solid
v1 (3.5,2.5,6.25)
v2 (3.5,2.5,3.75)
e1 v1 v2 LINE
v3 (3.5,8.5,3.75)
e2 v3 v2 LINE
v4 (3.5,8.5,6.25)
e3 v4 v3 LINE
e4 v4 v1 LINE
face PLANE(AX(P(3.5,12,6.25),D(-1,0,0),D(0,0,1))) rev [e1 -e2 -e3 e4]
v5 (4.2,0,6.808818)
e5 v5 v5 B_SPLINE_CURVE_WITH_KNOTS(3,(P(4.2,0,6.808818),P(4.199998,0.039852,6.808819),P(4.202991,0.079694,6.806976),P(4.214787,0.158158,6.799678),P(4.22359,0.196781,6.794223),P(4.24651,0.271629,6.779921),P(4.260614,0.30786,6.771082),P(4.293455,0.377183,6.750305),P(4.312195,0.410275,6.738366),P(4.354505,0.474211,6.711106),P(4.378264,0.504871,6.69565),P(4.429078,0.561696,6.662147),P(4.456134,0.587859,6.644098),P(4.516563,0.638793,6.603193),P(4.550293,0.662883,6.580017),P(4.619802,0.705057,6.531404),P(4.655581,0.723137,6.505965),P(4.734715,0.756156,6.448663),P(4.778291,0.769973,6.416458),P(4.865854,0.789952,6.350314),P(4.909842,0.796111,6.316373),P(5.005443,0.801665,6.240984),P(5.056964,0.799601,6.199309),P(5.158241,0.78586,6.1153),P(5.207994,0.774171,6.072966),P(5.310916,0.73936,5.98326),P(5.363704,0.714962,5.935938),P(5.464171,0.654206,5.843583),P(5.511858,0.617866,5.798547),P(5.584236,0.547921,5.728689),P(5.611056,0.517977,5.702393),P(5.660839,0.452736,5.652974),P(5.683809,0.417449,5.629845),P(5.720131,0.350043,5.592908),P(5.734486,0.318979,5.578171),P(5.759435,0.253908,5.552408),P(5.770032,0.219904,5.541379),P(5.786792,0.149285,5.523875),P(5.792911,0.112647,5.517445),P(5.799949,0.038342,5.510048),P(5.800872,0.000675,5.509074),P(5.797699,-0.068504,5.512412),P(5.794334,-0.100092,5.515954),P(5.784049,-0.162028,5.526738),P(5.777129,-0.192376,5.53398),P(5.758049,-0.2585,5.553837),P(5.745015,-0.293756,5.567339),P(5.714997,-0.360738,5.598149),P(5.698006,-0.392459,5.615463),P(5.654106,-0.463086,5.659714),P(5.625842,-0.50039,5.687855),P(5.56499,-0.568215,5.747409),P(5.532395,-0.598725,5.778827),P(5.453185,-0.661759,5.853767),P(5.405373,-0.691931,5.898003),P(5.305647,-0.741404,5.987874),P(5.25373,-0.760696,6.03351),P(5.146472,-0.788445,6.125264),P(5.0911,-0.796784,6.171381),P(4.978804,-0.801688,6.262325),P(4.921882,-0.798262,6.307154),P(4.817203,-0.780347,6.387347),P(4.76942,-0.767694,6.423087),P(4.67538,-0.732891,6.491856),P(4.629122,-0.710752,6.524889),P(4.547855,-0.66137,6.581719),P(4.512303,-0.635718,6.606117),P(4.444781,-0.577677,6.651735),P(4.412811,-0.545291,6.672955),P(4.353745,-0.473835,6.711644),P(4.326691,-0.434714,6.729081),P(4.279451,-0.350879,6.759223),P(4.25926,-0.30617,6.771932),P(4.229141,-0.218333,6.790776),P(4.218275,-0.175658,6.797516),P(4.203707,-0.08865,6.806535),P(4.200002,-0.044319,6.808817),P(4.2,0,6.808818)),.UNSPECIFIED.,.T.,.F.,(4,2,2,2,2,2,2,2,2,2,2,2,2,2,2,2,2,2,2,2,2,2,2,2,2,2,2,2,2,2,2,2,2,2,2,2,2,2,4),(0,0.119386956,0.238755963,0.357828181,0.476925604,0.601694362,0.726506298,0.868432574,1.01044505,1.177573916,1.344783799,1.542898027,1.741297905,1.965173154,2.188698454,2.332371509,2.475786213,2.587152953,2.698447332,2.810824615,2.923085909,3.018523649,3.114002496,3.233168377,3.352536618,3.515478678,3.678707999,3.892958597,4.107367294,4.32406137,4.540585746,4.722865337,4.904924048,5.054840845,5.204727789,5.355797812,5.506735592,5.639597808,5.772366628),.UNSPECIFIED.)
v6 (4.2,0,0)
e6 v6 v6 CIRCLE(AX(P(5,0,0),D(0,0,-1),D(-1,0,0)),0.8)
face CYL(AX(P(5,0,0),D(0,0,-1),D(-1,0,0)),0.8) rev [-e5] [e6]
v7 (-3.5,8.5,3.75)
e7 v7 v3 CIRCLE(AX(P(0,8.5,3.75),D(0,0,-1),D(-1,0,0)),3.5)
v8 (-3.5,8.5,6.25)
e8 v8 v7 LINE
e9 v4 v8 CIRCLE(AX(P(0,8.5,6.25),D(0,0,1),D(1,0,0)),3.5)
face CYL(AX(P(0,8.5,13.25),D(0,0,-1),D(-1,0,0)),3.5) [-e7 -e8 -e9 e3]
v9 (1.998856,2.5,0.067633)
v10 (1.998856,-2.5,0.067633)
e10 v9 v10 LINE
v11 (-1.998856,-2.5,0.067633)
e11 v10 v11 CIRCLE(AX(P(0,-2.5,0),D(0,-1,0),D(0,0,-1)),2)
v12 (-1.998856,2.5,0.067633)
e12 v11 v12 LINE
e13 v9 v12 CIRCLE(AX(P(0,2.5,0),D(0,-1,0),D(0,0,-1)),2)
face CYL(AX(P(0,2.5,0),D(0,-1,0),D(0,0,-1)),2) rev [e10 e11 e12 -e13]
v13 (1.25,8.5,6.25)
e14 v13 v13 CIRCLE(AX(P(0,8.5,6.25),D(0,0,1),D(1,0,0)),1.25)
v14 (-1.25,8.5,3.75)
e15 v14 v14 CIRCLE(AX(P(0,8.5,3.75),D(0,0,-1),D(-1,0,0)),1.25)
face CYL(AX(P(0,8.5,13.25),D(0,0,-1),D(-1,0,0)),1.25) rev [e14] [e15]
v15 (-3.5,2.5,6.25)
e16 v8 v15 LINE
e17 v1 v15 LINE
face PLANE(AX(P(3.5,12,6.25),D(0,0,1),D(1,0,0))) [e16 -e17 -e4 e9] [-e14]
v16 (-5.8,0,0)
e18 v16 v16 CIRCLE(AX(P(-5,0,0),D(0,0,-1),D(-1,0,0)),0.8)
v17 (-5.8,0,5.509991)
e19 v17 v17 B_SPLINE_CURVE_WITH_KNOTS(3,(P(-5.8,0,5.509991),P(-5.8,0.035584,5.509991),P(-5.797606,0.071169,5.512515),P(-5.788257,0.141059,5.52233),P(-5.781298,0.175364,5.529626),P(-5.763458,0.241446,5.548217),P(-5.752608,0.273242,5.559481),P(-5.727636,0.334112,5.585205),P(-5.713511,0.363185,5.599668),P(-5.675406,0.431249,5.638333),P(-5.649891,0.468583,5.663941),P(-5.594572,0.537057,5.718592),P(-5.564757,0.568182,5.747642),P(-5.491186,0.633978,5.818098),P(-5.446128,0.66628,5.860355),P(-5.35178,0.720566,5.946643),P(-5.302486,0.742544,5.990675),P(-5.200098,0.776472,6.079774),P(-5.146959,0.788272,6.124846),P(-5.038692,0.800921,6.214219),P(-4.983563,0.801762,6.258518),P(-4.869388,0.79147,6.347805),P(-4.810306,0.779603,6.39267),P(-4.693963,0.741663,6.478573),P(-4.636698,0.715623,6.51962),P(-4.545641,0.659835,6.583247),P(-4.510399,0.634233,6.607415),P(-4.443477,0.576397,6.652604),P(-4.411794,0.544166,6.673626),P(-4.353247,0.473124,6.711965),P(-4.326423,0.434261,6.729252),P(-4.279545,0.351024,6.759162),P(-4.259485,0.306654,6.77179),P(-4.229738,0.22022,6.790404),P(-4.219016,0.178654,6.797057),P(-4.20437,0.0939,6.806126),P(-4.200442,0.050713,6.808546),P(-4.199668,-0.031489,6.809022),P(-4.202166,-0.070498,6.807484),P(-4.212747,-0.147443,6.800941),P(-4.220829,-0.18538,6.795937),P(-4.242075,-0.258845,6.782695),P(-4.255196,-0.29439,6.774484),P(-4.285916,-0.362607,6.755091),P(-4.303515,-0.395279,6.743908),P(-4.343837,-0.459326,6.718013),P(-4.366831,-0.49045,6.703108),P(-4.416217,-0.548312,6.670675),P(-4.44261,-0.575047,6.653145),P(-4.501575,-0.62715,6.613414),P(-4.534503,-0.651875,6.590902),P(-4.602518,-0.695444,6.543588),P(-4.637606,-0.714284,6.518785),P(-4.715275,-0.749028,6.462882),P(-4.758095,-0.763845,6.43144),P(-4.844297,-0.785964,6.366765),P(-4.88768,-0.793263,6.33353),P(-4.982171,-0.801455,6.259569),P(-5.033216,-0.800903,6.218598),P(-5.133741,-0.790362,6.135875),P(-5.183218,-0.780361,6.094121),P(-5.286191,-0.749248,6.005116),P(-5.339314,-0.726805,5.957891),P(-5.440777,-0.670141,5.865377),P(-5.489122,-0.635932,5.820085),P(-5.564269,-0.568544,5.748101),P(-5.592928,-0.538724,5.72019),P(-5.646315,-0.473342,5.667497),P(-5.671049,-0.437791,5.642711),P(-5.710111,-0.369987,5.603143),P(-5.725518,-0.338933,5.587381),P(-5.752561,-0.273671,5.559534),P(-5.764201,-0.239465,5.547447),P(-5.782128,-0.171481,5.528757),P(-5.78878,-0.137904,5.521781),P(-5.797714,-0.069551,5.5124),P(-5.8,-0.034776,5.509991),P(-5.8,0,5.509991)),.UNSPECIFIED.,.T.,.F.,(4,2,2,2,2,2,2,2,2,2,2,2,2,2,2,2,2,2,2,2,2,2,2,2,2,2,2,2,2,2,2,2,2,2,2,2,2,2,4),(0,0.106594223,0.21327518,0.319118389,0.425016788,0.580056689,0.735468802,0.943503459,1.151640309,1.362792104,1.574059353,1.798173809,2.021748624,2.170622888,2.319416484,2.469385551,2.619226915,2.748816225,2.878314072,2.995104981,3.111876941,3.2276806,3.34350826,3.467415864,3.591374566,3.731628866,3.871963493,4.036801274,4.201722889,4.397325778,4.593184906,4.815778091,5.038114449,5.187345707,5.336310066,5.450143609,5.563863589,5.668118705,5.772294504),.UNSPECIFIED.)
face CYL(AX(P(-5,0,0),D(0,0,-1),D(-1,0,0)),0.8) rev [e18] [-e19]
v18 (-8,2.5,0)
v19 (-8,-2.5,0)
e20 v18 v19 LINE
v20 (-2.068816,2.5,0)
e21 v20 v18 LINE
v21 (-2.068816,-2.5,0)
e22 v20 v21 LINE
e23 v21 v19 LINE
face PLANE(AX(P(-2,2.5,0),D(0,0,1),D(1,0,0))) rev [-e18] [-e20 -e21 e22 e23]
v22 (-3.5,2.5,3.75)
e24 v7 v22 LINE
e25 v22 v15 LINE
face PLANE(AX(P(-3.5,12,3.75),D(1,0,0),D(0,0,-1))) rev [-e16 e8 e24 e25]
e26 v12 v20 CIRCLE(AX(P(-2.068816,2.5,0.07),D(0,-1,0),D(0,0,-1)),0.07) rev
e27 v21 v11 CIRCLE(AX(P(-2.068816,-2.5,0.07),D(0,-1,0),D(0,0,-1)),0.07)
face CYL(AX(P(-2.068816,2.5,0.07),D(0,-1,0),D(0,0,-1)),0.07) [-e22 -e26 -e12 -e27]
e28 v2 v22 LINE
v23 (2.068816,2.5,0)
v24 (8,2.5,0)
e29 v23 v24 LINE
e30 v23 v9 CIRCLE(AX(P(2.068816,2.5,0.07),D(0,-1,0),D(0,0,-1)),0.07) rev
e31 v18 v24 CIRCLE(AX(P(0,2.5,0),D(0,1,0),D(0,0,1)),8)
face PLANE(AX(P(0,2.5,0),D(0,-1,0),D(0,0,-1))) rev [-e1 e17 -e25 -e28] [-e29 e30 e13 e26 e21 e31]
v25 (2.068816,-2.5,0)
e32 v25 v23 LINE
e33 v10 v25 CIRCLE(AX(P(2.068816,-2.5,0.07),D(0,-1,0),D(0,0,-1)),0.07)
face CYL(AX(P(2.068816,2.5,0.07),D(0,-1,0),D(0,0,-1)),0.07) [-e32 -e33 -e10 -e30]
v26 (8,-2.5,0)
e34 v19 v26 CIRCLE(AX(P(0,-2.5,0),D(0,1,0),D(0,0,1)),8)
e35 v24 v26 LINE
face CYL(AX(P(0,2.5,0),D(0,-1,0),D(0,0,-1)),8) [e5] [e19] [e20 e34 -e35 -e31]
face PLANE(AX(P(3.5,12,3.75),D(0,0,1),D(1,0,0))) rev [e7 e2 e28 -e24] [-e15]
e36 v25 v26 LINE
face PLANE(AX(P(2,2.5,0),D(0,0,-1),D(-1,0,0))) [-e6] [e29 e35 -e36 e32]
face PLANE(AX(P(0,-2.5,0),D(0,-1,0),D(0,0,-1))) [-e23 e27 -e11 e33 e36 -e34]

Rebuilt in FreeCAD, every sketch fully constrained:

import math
import FreeCAD as App
import Part
import Sketcher

V = App.Vector


def edges_at(feature, points):
    """Names of the edges that pass closest to the given points."""
    edges = feature.Shape.Edges
    near = lambda p: min(range(len(edges)), key=lambda i: edges[i].distToShape(Part.Vertex(*p))[0])
    return sorted({f"Edge{near(p) + 1}" for p in points})


def add_polygon(sketch, points):
    """Adds a closed chain of lines whose ends are joined by coincident constraints."""
    first, n = sketch.GeometryCount, len(points)
    for a, b in zip(points, points[1:] + points[:1]):
        sketch.addGeometry(Part.LineSegment(App.Vector(*a, 0), App.Vector(*b, 0)), False)
    for i in range(n):
        sketch.addConstraint(Sketcher.Constraint("Coincident", first + i, 2, first + (i + 1) % n, 1))

doc = App.newDocument("Part")
body = doc.addObject("PartDesign::Body", "Body")

# Sketch on XZ plane
sketch1 = body.newObject("Sketcher::SketchObject", "Sketch")
sketch1.AttachmentSupport = (doc.getObject("XZ_Plane"), [""])
sketch1.MapMode = "FlatFace"
sketch1.addGeometry(Part.LineSegment(V(8, 0, 0), V(2, 0, 0)), False)
sketch1.addGeometry(Part.ArcOfCircle(Part.Circle(V(0, 0, 0), V(0, 0, 1), 2), math.radians(0), math.radians(180)), False)
sketch1.addGeometry(Part.LineSegment(V(-2, 0, 0), V(-8, 0, 0)), False)
sketch1.addGeometry(Part.ArcOfCircle(Part.Circle(V(0, 0, 0), V(0, 0, 1), 8), math.radians(0), math.radians(180)), False)
sketch1.addConstraint(Sketcher.Constraint("Coincident", 0, 2, 1, 1))
sketch1.addConstraint(Sketcher.Constraint("Coincident", 1, 2, 2, 1))
sketch1.addConstraint(Sketcher.Constraint("Coincident", 2, 2, 3, 2))
sketch1.addConstraint(Sketcher.Constraint("Coincident", 3, 1, 0, 1))
sketch1.addConstraint(Sketcher.Constraint("Horizontal", 0))
sketch1.addConstraint(Sketcher.Constraint("Horizontal", 2))
sketch1.addConstraint(Sketcher.Constraint("Coincident", 1, 3, -1, 1))
sketch1.addConstraint(Sketcher.Constraint("Coincident", 3, 3, -1, 1))
sketch1.addConstraint(Sketcher.Constraint("PointOnObject", 0, 2, -1))
sketch1.addConstraint(Sketcher.Constraint("PointOnObject", 1, 2, -1))
sketch1.addConstraint(Sketcher.Constraint("Radius", 1, 2.0))
sketch1.addConstraint(Sketcher.Constraint("Radius", 3, 8.0))
pad1 = body.newObject("PartDesign::Pad", "Pad")
pad1.Profile = sketch1
pad1.Length = 5
pad1.Midplane = True

# Sketch on XZ plane
sketch2 = body.newObject("Sketcher::SketchObject", "Sketch001")
sketch2.AttachmentSupport = (doc.getObject("XZ_Plane"), [""])
sketch2.MapMode = "FlatFace"
sketch2.AttachmentOffset = App.Placement(V(0, 0, -2.5), App.Rotation())
add_polygon(sketch2, [(-3.5, 3.8), (-3.5, 6.2), (3.5, 6.2), (3.5, 3.8)])  # lines 0-3
sketch2.addConstraint(Sketcher.Constraint("Vertical", 0))
sketch2.addConstraint(Sketcher.Constraint("Horizontal", 1))
sketch2.addConstraint(Sketcher.Constraint("Vertical", 2))
sketch2.addConstraint(Sketcher.Constraint("Horizontal", 3))
sketch2.addConstraint(Sketcher.Constraint("DistanceX", 1, 1, 1, 2, 7.0))
sketch2.addConstraint(Sketcher.Constraint("DistanceY", 0, 1, 0, 2, 2.5))
sketch2.addConstraint(Sketcher.Constraint("DistanceX", 0, 2, -1, 1, 3.5))
sketch2.addConstraint(Sketcher.Constraint("DistanceY", -1, 1, 0, 2, 6.25))
pad2 = body.newObject("PartDesign::Pad", "Pad001")
pad2.Profile = sketch2
pad2.Length = 9.5
pad2.Reversed = True

# Sketch on XY plane
sketch3 = body.newObject("Sketcher::SketchObject", "Sketch002")
sketch3.AttachmentSupport = (doc.getObject("XY_Plane"), [""])
sketch3.MapMode = "FlatFace"
sketch3.AttachmentOffset = App.Placement(V(0, 0, 3.75), App.Rotation())
sketch3.addGeometry(Part.LineSegment(V(3.5, 14.9, 0), V(3.5, 8.5, 0)), False)
sketch3.addGeometry(Part.ArcOfCircle(Part.Circle(V(0, 8.5, 0), V(0, 0, 1), 3.5), math.radians(0), math.radians(180)), False)
sketch3.addGeometry(Part.LineSegment(V(-3.5, 8.5, 0), V(-3.5, 14.5, 0)), False)
sketch3.addGeometry(Part.LineSegment(V(-3.5, 14.5, 0), V(0, 16.8, 0)), False)
sketch3.addGeometry(Part.LineSegment(V(0, 16.8, 0), V(3.5, 14.9, 0)), False)
sketch3.addConstraint(Sketcher.Constraint("Tangent", 0, 2, 1, 1))
sketch3.addConstraint(Sketcher.Constraint("Tangent", 1, 2, 2, 1))
sketch3.addConstraint(Sketcher.Constraint("Coincident", 2, 2, 3, 1))
sketch3.addConstraint(Sketcher.Constraint("Coincident", 3, 2, 4, 1))
sketch3.addConstraint(Sketcher.Constraint("Coincident", 4, 2, 0, 1))
sketch3.addConstraint(Sketcher.Constraint("Vertical", 0))
sketch3.addConstraint(Sketcher.Constraint("Vertical", 2))
sketch3.addConstraint(Sketcher.Constraint("PointOnObject", 1, 3, -2))
sketch3.addConstraint(Sketcher.Constraint("PointOnObject", 3, 2, -2))
sketch3.addConstraint(Sketcher.Constraint("Radius", 1, 3.5))
sketch3.addConstraint(Sketcher.Constraint("DistanceY", 2, 1, 2, 2, 6.0))
sketch3.addConstraint(Sketcher.Constraint("DistanceY", -1, 1, 1, 3, 8.5))
sketch3.addConstraint(Sketcher.Constraint("DistanceY", 0, 2, 0, 1, 6.38636))
sketch3.addConstraint(Sketcher.Constraint("DistanceY", -1, 1, 3, 2, 16.809202))
pocket1 = body.newObject("PartDesign::Pocket", "Pocket")
pocket1.Profile = sketch3
pocket1.Length = 9.5
pocket1.Reversed = True

# Sketch on XY plane
sketch4 = body.newObject("Sketcher::SketchObject", "Sketch003")
sketch4.AttachmentSupport = (doc.getObject("XY_Plane"), [""])
sketch4.MapMode = "FlatFace"
sketch4.AttachmentOffset = App.Placement(V(0, 0, 3.75), App.Rotation())
sketch4.addGeometry(Part.Circle(V(0, 8.5, 0), V(0, 0, 1), 1.2), False)
sketch4.addConstraint(Sketcher.Constraint("PointOnObject", 0, 3, -2))
sketch4.addConstraint(Sketcher.Constraint("Diameter", 0, 2.5))
sketch4.addConstraint(Sketcher.Constraint("DistanceY", -1, 1, 0, 3, 8.5))
pocket2 = body.newObject("PartDesign::Pocket", "Pocket001")
pocket2.Profile = sketch4
pocket2.Length = 9.5
pocket2.Reversed = True

# Sketch on XY plane
sketch5 = body.newObject("Sketcher::SketchObject", "Sketch004")
sketch5.AttachmentSupport = (doc.getObject("XY_Plane"), [""])
sketch5.MapMode = "FlatFace"
sketch5.addGeometry(Part.Circle(V(5, 0, 0), V(0, 0, 1), 0.8), False)
sketch5.addGeometry(Part.Circle(V(-5, 0, 0), V(0, 0, 1), 0.8), False)
sketch5.addConstraint(Sketcher.Constraint("Equal", 0, 1))
sketch5.addConstraint(Sketcher.Constraint("Symmetric", 0, 3, 1, 3, -1, 1))
sketch5.addConstraint(Sketcher.Constraint("PointOnObject", 0, 3, -1))
sketch5.addConstraint(Sketcher.Constraint("Diameter", 0, 1.6))
sketch5.addConstraint(Sketcher.Constraint("DistanceX", -1, 1, 0, 3, 5.0))
doc.recompute()
hole = body.newObject("PartDesign::Hole", "Hole")
hole.Profile = sketch5
hole.ThreadType = "None"
hole.Diameter = 1.6
hole.DepthType = "ThroughAll"
hole.Reversed = True
doc.recompute()

fillet = body.newObject("PartDesign::Fillet", "Fillet")
fillet.Base = (hole, edges_at(hole, [(2, 0, 0), (-2, 0, 0)]))
fillet.Radius = 0.07

doc.recompute()
